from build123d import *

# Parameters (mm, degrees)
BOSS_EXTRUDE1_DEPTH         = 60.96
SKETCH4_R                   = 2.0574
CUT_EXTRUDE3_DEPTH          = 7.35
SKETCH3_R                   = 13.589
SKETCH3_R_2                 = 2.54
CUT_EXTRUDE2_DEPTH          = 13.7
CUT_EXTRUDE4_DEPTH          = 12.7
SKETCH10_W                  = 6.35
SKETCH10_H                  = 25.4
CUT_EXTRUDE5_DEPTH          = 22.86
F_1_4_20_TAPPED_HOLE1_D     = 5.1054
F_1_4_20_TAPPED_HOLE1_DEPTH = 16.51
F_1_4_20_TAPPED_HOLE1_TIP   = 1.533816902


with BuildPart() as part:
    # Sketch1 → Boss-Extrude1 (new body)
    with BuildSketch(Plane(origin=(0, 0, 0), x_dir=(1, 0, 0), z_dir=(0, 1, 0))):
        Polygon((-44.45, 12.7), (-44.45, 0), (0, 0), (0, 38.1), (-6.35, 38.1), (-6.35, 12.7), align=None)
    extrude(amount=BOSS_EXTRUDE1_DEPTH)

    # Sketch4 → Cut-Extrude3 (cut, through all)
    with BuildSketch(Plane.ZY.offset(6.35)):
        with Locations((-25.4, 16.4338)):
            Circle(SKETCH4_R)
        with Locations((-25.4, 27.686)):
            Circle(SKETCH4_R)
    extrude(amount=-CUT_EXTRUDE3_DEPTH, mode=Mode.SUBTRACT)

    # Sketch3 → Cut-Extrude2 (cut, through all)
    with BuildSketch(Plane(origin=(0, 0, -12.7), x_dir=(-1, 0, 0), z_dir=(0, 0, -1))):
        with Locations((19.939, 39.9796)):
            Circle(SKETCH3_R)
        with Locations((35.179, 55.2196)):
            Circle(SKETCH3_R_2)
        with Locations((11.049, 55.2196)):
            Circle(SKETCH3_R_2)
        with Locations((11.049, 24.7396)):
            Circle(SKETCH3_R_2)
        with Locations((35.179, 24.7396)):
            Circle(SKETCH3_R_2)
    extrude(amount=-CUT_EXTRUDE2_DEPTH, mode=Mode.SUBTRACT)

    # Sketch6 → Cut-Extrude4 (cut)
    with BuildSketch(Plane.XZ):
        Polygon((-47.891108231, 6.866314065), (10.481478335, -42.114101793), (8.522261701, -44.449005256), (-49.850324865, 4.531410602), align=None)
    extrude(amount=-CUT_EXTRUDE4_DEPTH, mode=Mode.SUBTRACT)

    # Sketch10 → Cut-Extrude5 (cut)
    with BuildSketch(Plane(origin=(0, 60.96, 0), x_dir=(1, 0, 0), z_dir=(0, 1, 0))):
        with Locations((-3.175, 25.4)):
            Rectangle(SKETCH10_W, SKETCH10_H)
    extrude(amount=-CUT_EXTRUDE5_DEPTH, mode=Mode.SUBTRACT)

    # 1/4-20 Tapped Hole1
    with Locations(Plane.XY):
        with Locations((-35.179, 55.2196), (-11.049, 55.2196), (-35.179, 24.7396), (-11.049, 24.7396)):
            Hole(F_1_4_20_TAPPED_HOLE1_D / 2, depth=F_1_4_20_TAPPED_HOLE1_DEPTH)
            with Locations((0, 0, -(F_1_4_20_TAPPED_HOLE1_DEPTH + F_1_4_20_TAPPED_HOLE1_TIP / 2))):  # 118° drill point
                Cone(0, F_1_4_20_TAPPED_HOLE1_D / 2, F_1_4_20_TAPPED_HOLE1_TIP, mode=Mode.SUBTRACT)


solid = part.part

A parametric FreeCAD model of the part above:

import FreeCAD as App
import Part
import Sketcher
Q = App.Units.Quantity

doc = App.newDocument("Part")
body = doc.addObject("PartDesign::Body", "Body")

# Sketch on XZ plane
sketch1 = body.newObject("Sketcher::SketchObject", "Sketch")
sketch1.AttachmentSupport = (doc.getObject("XZ_Plane"), [""])
sketch1.MapMode = "FlatFace"
sketch1.addGeometry(Part.LineSegment(App.Vector(-44.45, -12.7, 0), App.Vector(-44.45, 0, 0)), False)
sketch1.addGeometry(Part.LineSegment(App.Vector(-44.45, 0, 0), App.Vector(0, 0, 0)), False)
sketch1.addGeometry(Part.LineSegment(App.Vector(0, 0, 0), App.Vector(0, -38.1, 0)), False)
sketch1.addGeometry(Part.LineSegment(App.Vector(0, -38.1, 0), App.Vector(-6.35, -38.1, 0)), False)
sketch1.addGeometry(Part.LineSegment(App.Vector(-6.35, -38.1, 0), App.Vector(-6.35, -12.7, 0)), False)
sketch1.addGeometry(Part.LineSegment(App.Vector(-6.35, -12.7, 0), App.Vector(-44.45, -12.7, 0)), False)
sketch1.addConstraint(Sketcher.Constraint("Coincident", 0, 2, 1, 1))
sketch1.addConstraint(Sketcher.Constraint("Coincident", 1, 2, 2, 1))
sketch1.addConstraint(Sketcher.Constraint("Coincident", 2, 2, 3, 1))
sketch1.addConstraint(Sketcher.Constraint("Coincident", 3, 2, 4, 1))
sketch1.addConstraint(Sketcher.Constraint("Coincident", 4, 2, 5, 1))
sketch1.addConstraint(Sketcher.Constraint("Coincident", 5, 2, 0, 1))
sketch1.addConstraint(Sketcher.Constraint("Vertical", 0))
sketch1.addConstraint(Sketcher.Constraint("Horizontal", 1))
sketch1.addConstraint(Sketcher.Constraint("Vertical", 2))
sketch1.addConstraint(Sketcher.Constraint("Horizontal", 3))
sketch1.addConstraint(Sketcher.Constraint("Vertical", 4))
sketch1.addConstraint(Sketcher.Constraint("Horizontal", 5))
sketch1.addConstraint(Sketcher.Constraint("Coincident", 1, 2, -1, 1))
sketch1.addConstraint(Sketcher.Constraint("Equal", 5, 2))
sketch1.addConstraint(Sketcher.Constraint("DistanceY", 4, 1, 4, 2, Q("1 in")))
sketch1.addConstraint(Sketcher.Constraint("DistanceX", 5, 2, 5, 1, Q("1.5 in")))
sketch1.addConstraint(Sketcher.Constraint("DistanceX", 1, 1, 1, 2, Q("1.75 in")))
pad1 = body.newObject("PartDesign::Pad", "Pad")
pad1.Profile = sketch1
pad1.Length = Q("2.4 in")
pad1.Reversed = True

# Sketch on YZ plane
sketch2 = body.newObject("Sketcher::SketchObject", "Sketch001")
sketch2.AttachmentSupport = (doc.getObject("YZ_Plane"), [""])
sketch2.MapMode = "FlatFace"
sketch2.AttachmentOffset = App.Placement(App.Vector(0, 0, -0.25 * 25.4), App.Rotation())
sketch2.addGeometry(Part.Circle(App.Vector(16.4338, -25.4, 0), App.Vector(0, 0, 1), 2.0574), False)
sketch2.addGeometry(Part.Circle(App.Vector(27.686, -25.4, 0), App.Vector(0, 0, 1), 2.0574), False)
sketch2.addConstraint(Sketcher.Constraint("Equal", 0, 1))
sketch2.addConstraint(Sketcher.Constraint("Horizontal", 0, 3, 1, 3))
sketch2.addConstraint(Sketcher.Constraint("Diameter", 0, Q("0.162 in")))
sketch2.addConstraint(Sketcher.Constraint("DistanceY", 0, 3, -1, 1, Q("1 in")))
sketch2.addConstraint(Sketcher.Constraint("DistanceX", -1, 1, 1, 3, Q("1.09 in")))
sketch2.addConstraint(Sketcher.Constraint("DistanceX", -1, 1, 0, 3, Q("0.647 in")))
pocket1 = body.newObject("PartDesign::Pocket", "Pocket")
pocket1.Profile = sketch2
pocket1.Type = "ThroughAll"
pocket1.Reversed = True

# Sketch on XY plane
sketch3 = body.newObject("Sketcher::SketchObject", "Sketch002")
sketch3.AttachmentSupport = (doc.getObject("XY_Plane"), [""])
sketch3.MapMode = "FlatFace"
sketch3.AttachmentOffset = App.Placement(App.Vector(0, 0, -0.5 * 25.4), App.Rotation())
sketch3.addGeometry(Part.Circle(App.Vector(-19.939, 39.9796, 0), App.Vector(0, 0, 1), 13.589), False)
sketch3.addGeometry(Part.Circle(App.Vector(-35.179, 55.2196, 0), App.Vector(0, 0, 1), 2.54), False)
sketch3.addGeometry(Part.Circle(App.Vector(-11.049, 55.2196, 0), App.Vector(0, 0, 1), 2.54), False)
sketch3.addGeometry(Part.Circle(App.Vector(-11.049, 24.7396, 0), App.Vector(0, 0, 1), 2.54), False)
sketch3.addGeometry(Part.Circle(App.Vector(-35.179, 24.7396, 0), App.Vector(0, 0, 1), 2.54), False)
sketch3.addConstraint(Sketcher.Constraint("Equal", 1, 2))
sketch3.addConstraint(Sketcher.Constraint("Equal", 2, 3))
sketch3.addConstraint(Sketcher.Constraint("Equal", 3, 4))
sketch3.addConstraint(Sketcher.Constraint("Horizontal", 1, 3, 2, 3))
sketch3.addConstraint(Sketcher.Constraint("Horizontal", 3, 3, 4, 3))
sketch3.addConstraint(Sketcher.Constraint("Vertical", 2, 3, 3, 3))
sketch3.addConstraint(Sketcher.Constraint("Vertical", 1, 3, 4, 3))
sketch3.addConstraint(Sketcher.Constraint("Diameter", 1, Q("0.2 in")))
sketch3.addConstraint(Sketcher.Constraint("Diameter", 0, Q("1.07 in")))
sketch3.addConstraint(Sketcher.Constraint("DistanceX", 1, 3, 0, 3, Q("0.6 in")))
sketch3.addConstraint(Sketcher.Constraint("DistanceY", 0, 3, 1, 3, Q("0.6 in")))
sketch3.addConstraint(Sketcher.Constraint("DistanceY", 3, 3, 0, 3, Q("0.6 in")))
sketch3.addConstraint(Sketcher.Constraint("DistanceX", 0, 3, 2, 3, Q("0.35 in")))
sketch3.addConstraint(Sketcher.Constraint("DistanceX", 0, 3, -1, 1, Q("0.785 in")))
sketch3.addConstraint(Sketcher.Constraint("DistanceY", -1, 1, 0, 3, Q("1.574 in")))
pocket2 = body.newObject("PartDesign::Pocket", "Pocket001")
pocket2.Profile = sketch3
pocket2.Type = "ThroughAll"
pocket2.Reversed = True

# Sketch on XZ plane
sketch4 = body.newObject("Sketcher::SketchObject", "Sketch003")
sketch4.AttachmentSupport = (doc.getObject("XZ_Plane"), [""])
sketch4.MapMode = "FlatFace"
sketch4.addGeometry(Part.LineSegment(App.Vector(10.481478, -42.114102, 0), App.Vector(-47.891108, 6.866314, 0)), False)
sketch4.addGeometry(Part.LineSegment(App.Vector(-47.891108, 6.866314, 0), App.Vector(-49.850325, 4.531411, 0)), False)
sketch4.addGeometry(Part.LineSegment(App.Vector(-49.850325, 4.531411, 0), App.Vector(8.522262, -44.449005, 0)), False)
sketch4.addGeometry(Part.LineSegment(App.Vector(8.522262, -44.449005, 0), App.Vector(10.481478, -42.114102, 0)), False)
sketch4.addConstraint(Sketcher.Constraint("Coincident", 0, 2, 1, 1))
sketch4.addConstraint(Sketcher.Constraint("Coincident", 1, 2, 2, 1))
sketch4.addConstraint(Sketcher.Constraint("Coincident", 2, 2, 3, 1))
sketch4.addConstraint(Sketcher.Constraint("Coincident", 3, 2, 0, 1))
sketch4.addConstraint(Sketcher.Constraint("Perpendicular", 0, 1))
sketch4.addConstraint(Sketcher.Constraint("Perpendicular", 1, 2))
sketch4.addConstraint(Sketcher.Constraint("Perpendicular", 2, 3))
sketch4.addConstraint(Sketcher.Constraint("Distance", 0, Q("3 in")))
sketch4.addConstraint(Sketcher.Constraint("Angle", 0, Q("140 deg")))
sketch4.addConstraint(Sketcher.Constraint("Distance", 1, Q("0.12 in")))
sketch4.addConstraint(Sketcher.Constraint("DistanceY", 3, 2, -1, 1, 42.114102))
sketch4.addConstraint(Sketcher.Constraint("DistanceX", 0, 2, -1, 1, 47.891108))
pocket3 = body.newObject("PartDesign::Pocket", "Pocket002")
pocket3.Profile = sketch4
pocket3.Length = Q("0.5 in")

# Sketch on XZ plane
sketch5 = body.newObject("Sketcher::SketchObject", "Sketch004")
sketch5.AttachmentSupport = (doc.getObject("XZ_Plane"), [""])
sketch5.MapMode = "FlatFace"
sketch5.AttachmentOffset = App.Placement(App.Vector(0, 0, -2.4 * 25.4), App.Rotation())
sketch5.addGeometry(Part.LineSegment(App.Vector(-6.35, -38.1, 0), App.Vector(-6.35, -12.7, 0)), False)
sketch5.addGeometry(Part.LineSegment(App.Vector(-6.35, -12.7, 0), App.Vector(0, -12.7, 0)), False)
sketch5.addGeometry(Part.LineSegment(App.Vector(0, -12.7, 0), App.Vector(0, -38.1, 0)), False)
sketch5.addGeometry(Part.LineSegment(App.Vector(0, -38.1, 0), App.Vector(-6.35, -38.1, 0)), False)
sketch5.addConstraint(Sketcher.Constraint("Coincident", 0, 2, 1, 1))
sketch5.addConstraint(Sketcher.Constraint("Coincident", 1, 2, 2, 1))
sketch5.addConstraint(Sketcher.Constraint("Coincident", 2, 2, 3, 1))
sketch5.addConstraint(Sketcher.Constraint("Coincident", 3, 2, 0, 1))
sketch5.addConstraint(Sketcher.Constraint("Vertical", 0))
sketch5.addConstraint(Sketcher.Constraint("Horizontal", 1))
sketch5.addConstraint(Sketcher.Constraint("Vertical", 2))
sketch5.addConstraint(Sketcher.Constraint("Horizontal", 3))
sketch5.addConstraint(Sketcher.Constraint("PointOnObject", 1, 2, -2))
sketch5.addConstraint(Sketcher.Constraint("DistanceY", 0, 1, 0, 2, Q("1 in")))
sketch5.addConstraint(Sketcher.Constraint("DistanceX", 1, 1, 1, 2, Q("0.25 in")))
sketch5.addConstraint(Sketcher.Constraint("DistanceY", 0, 2, -1, 1, Q("0.5 in")))
pocket4 = body.newObject("PartDesign::Pocket", "Pocket003")
pocket4.Profile = sketch5
pocket4.Length = Q("0.9 in")
pocket4.Reversed = True

# Sketch on XY plane
sketch6 = body.newObject("Sketcher::SketchObject", "Sketch005")
sketch6.AttachmentSupport = (doc.getObject("XY_Plane"), [""])
sketch6.MapMode = "FlatFace"
sketch6.addGeometry(Part.Circle(App.Vector(-35.179, 55.2196, 0), App.Vector(0, 0, 1), 2.5527), False)
sketch6.addGeometry(Part.Circle(App.Vector(-11.049, 55.2196, 0), App.Vector(0, 0, 1), 2.5527), False)
sketch6.addGeometry(Part.Circle(App.Vector(-35.179, 24.7396, 0), App.Vector(0, 0, 1), 2.5527), False)
sketch6.addGeometry(Part.Circle(App.Vector(-11.049, 24.7396, 0), App.Vector(0, 0, 1), 2.5527), False)
sketch6.addConstraint(Sketcher.Constraint("Equal", 0, 1))
sketch6.addConstraint(Sketcher.Constraint("Equal", 1, 2))
sketch6.addConstraint(Sketcher.Constraint("Equal", 2, 3))
sketch6.addConstraint(Sketcher.Constraint("Horizontal", 0, 3, 1, 3))
sketch6.addConstraint(Sketcher.Constraint("Horizontal", 2, 3, 3, 3))
sketch6.addConstraint(Sketcher.Constraint("Vertical", 0, 3, 2, 3))
sketch6.addConstraint(Sketcher.Constraint("Vertical", 1, 3, 3, 3))
sketch6.addConstraint(Sketcher.Constraint("Diameter", 0, Q("0.201 in")))
sketch6.addConstraint(Sketcher.Constraint("DistanceY", 2, 3, 0, 3, Q("1.2 in")))
sketch6.addConstraint(Sketcher.Constraint("DistanceX", 0, 3, 1, 3, Q("0.95 in")))
sketch6.addConstraint(Sketcher.Constraint("DistanceX", 0, 3, -1, 1, Q("1.385 in")))
sketch6.addConstraint(Sketcher.Constraint("DistanceY", -1, 1, 0, 3, Q("2.174 in")))
doc.recompute()
hole = body.newObject("PartDesign::Hole", "Hole")
hole.Profile = sketch6
hole.ThreadType = "None"
hole.Diameter = Q("0.201 in")
hole.DepthType = "Dimension"
hole.Depth = Q("0.65 in")
hole.DrillPoint = "Angled"
hole.DrillPointAngle = 118

doc.recompute()
